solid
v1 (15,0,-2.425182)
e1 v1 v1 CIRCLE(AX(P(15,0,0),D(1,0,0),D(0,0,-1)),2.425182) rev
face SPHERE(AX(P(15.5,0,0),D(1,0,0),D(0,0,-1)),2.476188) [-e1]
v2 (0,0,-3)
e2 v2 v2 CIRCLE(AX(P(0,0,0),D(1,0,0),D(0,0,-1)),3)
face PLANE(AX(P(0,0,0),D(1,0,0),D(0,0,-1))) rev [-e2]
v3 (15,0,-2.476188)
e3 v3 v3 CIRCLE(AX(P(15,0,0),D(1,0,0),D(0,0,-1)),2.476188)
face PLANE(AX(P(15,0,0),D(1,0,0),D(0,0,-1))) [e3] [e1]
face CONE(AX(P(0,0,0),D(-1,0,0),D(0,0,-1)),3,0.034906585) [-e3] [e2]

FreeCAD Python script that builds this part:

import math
import FreeCAD as App
import Part
import Sketcher
from FreeCAD import Vector
Q = App.Units.Quantity

doc = App.newDocument("Part")
body = doc.addObject("PartDesign::Body", "Body")

# Sketch on YZ plane
sketch1 = body.newObject("Sketcher::SketchObject", "Sketch")
sketch1.AttachmentSupport = (doc.getObject("YZ_Plane"), [""])
sketch1.MapMode = "FlatFace"
sketch1.addGeometry(Part.Circle(Vector(0, 0, 0), Vector(0, 0, 1), 3), False)
sketch1.addConstraint(Sketcher.Constraint("Coincident", 0, 3, -1, 1))
sketch1.addConstraint(Sketcher.Constraint("Diameter", 0, Q("6 mm")))
pad1 = body.newObject("PartDesign::Pad", "Pad")
pad1.Profile = sketch1
pad1.Length = 15
pad1.TaperAngle = -2

# Sketch on YZ plane
sketch2 = body.newObject("Sketcher::SketchObject", "Sketch001")
sketch2.AttachmentSupport = (doc.getObject("YZ_Plane"), [""])
sketch2.MapMode = "FlatFace"
sketch2.AttachmentOffset = App.Placement(Vector(0, 0, 15.5), App.Rotation())
sketch2.addGeometry(Part.LineSegment(Vector(2.5, 0, 0), Vector(-2.5, 0, 0)), False)
sketch2.addGeometry(Part.ArcOfCircle(Part.Circle(Vector(0, 0, 0), Vector(0, 0, 1), 2.5), math.radians(180), math.radians(360)), False)
sketch2.addConstraint(Sketcher.Constraint("Coincident", 0, 1, 1, 2))
sketch2.addConstraint(Sketcher.Constraint("Coincident", 1, 1, 0, 2))
sketch2.addConstraint(Sketcher.Constraint("Horizontal", 0))
sketch2.addConstraint(Sketcher.Constraint("Coincident", 1, 3, -1, 1))
sketch2.addConstraint(Sketcher.Constraint("PointOnObject", 0, 1, -1))
sketch2.addConstraint(Sketcher.Constraint("Radius", 1, Q("2.476188 mm")))
revolution = body.newObject("PartDesign::Revolution", "Revolution")
revolution.Profile = sketch2
revolution.ReferenceAxis = (sketch2, ["H_Axis"])
revolution.Angle = 360

doc.recompute()
